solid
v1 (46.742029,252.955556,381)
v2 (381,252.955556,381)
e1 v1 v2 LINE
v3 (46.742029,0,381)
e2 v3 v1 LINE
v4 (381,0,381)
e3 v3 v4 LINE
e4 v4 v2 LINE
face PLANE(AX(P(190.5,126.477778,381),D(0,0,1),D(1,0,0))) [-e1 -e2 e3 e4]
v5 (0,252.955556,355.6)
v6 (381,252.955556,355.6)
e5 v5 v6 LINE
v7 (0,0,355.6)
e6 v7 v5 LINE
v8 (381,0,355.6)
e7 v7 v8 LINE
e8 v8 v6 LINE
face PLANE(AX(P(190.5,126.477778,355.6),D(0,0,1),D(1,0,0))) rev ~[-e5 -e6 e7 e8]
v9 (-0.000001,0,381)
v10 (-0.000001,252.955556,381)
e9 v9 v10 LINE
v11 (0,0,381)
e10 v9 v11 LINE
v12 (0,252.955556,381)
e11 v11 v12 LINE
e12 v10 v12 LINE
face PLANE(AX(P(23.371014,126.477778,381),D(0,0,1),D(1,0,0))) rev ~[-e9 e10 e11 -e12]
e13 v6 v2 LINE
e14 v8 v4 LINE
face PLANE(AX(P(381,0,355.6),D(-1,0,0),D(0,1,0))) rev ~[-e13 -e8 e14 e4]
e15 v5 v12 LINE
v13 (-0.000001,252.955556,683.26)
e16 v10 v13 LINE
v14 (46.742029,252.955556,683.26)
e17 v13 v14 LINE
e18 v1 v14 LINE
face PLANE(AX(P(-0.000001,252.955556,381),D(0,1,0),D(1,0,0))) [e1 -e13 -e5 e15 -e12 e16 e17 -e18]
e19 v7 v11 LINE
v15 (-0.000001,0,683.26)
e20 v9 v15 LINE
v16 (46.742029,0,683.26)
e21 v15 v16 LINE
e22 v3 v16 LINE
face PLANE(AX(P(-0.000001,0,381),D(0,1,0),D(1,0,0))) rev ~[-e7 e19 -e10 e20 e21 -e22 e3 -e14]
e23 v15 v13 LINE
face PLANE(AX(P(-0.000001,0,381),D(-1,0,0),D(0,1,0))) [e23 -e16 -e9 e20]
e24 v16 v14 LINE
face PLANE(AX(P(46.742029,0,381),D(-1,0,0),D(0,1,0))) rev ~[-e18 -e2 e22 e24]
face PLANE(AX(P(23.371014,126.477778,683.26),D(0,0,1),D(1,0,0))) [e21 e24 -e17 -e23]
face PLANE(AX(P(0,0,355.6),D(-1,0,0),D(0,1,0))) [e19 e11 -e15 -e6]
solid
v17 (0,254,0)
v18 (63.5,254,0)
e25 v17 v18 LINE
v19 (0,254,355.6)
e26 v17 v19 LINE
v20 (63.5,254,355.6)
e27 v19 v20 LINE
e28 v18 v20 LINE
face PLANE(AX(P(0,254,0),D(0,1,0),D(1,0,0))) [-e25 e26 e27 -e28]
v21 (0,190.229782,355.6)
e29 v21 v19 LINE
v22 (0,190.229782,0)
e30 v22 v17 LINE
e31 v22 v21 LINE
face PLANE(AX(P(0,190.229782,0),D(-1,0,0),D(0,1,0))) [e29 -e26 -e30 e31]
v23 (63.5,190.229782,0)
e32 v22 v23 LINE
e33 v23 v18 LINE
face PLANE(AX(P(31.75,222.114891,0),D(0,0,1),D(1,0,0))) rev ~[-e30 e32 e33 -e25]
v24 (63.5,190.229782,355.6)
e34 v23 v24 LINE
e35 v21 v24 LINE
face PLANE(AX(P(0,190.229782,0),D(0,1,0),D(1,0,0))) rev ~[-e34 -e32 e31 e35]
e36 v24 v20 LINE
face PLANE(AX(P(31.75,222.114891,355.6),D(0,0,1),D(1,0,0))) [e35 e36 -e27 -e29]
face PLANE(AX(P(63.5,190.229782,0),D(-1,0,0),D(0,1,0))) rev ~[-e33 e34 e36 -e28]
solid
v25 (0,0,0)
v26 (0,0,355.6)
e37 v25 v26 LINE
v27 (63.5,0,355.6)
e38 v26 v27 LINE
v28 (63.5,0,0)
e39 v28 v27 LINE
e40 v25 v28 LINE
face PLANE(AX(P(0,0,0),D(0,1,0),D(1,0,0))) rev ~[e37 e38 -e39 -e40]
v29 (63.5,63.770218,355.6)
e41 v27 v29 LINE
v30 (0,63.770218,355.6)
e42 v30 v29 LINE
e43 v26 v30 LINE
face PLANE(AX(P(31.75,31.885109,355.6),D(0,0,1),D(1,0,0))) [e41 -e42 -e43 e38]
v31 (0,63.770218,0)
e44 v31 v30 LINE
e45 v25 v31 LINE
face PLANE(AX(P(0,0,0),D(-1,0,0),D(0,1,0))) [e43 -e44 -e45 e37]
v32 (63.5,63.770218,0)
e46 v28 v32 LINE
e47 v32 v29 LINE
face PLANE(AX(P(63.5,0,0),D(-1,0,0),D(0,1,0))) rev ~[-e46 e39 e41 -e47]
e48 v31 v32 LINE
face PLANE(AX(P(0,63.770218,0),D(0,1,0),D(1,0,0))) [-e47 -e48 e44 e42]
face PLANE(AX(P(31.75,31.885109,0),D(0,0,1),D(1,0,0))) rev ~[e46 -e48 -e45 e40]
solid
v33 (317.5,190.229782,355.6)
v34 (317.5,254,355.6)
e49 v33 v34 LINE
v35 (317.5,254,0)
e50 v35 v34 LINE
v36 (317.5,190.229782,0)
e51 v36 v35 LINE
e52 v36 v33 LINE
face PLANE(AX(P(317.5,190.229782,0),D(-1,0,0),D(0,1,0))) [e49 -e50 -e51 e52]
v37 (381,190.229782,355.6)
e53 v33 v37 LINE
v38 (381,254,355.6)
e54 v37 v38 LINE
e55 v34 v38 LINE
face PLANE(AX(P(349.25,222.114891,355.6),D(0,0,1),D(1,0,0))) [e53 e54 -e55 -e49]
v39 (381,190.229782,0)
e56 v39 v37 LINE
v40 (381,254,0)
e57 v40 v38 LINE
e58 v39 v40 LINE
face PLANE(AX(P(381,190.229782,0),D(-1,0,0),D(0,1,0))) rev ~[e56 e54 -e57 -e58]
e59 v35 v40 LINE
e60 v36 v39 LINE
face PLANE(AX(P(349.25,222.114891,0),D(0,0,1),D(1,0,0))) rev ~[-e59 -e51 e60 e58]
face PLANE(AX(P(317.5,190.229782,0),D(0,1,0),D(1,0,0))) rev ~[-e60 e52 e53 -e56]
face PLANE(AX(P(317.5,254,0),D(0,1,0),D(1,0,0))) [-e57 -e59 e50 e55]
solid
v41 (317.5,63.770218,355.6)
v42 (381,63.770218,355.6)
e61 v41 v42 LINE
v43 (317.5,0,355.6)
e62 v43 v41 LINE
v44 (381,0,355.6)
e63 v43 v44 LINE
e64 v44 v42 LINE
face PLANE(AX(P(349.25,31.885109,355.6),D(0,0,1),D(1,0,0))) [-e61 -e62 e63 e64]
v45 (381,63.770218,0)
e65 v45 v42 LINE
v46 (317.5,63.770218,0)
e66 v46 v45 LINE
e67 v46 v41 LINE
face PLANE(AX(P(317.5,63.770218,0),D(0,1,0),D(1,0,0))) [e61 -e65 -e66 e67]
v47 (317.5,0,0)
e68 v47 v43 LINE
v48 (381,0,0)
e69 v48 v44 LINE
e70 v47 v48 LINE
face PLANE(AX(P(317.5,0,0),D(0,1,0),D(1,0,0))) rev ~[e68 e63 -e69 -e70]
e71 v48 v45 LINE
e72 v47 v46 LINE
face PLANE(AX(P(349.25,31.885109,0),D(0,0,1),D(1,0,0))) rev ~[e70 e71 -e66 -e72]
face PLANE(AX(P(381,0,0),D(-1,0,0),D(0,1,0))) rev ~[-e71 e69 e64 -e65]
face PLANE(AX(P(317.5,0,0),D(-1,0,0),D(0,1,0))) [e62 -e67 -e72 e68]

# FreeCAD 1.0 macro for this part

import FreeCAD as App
import Part
import Sketcher
from FreeCAD import Vector
Q = App.Units.Quantity

doc = App.newDocument("Part")
body = doc.addObject("PartDesign::Body", "Body")
body.AllowCompound = True

# Sketch on XY plane
sketch1 = body.newObject("Sketcher::SketchObject", "Sketch")
sketch1.AttachmentSupport = (doc.getObject("XY_Plane"), [""])
sketch1.MapMode = "FlatFace"
sketch1.addGeometry([
    Part.LineSegment(Vector(318, 64, 0), Vector(318, 0, 0)),  # 0
    Part.LineSegment(Vector(318, 0, 0), Vector(381, 0, 0)),  # 1
    Part.LineSegment(Vector(381, 0, 0), Vector(381, 64, 0)),  # 2
    Part.LineSegment(Vector(381, 64, 0), Vector(318, 64, 0)),  # 3
    Part.LineSegment(Vector(0, 64, 0), Vector(0, 0, 0)),  # 4
    Part.LineSegment(Vector(0, 0, 0), Vector(64, 0, 0)),  # 5
    Part.LineSegment(Vector(64, 0, 0), Vector(64, 64, 0)),  # 6
    Part.LineSegment(Vector(64, 64, 0), Vector(0, 64, 0)),  # 7
    Part.LineSegment(Vector(0, 254, 0), Vector(0, 190, 0)),  # 8
    Part.LineSegment(Vector(0, 190, 0), Vector(64, 190, 0)),  # 9
    Part.LineSegment(Vector(64, 190, 0), Vector(64, 254, 0)),  # 10
    Part.LineSegment(Vector(64, 254, 0), Vector(0, 254, 0)),  # 11
    Part.LineSegment(Vector(318, 254, 0), Vector(318, 190, 0)),  # 12
    Part.LineSegment(Vector(318, 190, 0), Vector(381, 190, 0)),  # 13
    Part.LineSegment(Vector(381, 190, 0), Vector(381, 254, 0)),  # 14
    Part.LineSegment(Vector(381, 254, 0), Vector(318, 254, 0)),  # 15
], False)
sketch1.addConstraint([
    Sketcher.Constraint("Coincident", 0, 2, 1, 1),
    Sketcher.Constraint("Coincident", 1, 2, 2, 1),
    Sketcher.Constraint("Coincident", 2, 2, 3, 1),
    Sketcher.Constraint("Coincident", 3, 2, 0, 1),
    Sketcher.Constraint("Coincident", 4, 2, 5, 1),
    Sketcher.Constraint("Coincident", 5, 2, 6, 1),
    Sketcher.Constraint("Coincident", 6, 2, 7, 1),
    Sketcher.Constraint("Coincident", 7, 2, 4, 1),
    Sketcher.Constraint("Coincident", 8, 2, 9, 1),
    Sketcher.Constraint("Coincident", 9, 2, 10, 1),
    Sketcher.Constraint("Coincident", 10, 2, 11, 1),
    Sketcher.Constraint("Coincident", 11, 2, 8, 1),
    Sketcher.Constraint("Coincident", 12, 2, 13, 1),
    Sketcher.Constraint("Coincident", 13, 2, 14, 1),
    Sketcher.Constraint("Coincident", 14, 2, 15, 1),
    Sketcher.Constraint("Coincident", 15, 2, 12, 1),
    Sketcher.Constraint("Vertical", 0),
    Sketcher.Constraint("Horizontal", 1),
    Sketcher.Constraint("Vertical", 2),
    Sketcher.Constraint("Horizontal", 3),
    Sketcher.Constraint("Vertical", 4),
    Sketcher.Constraint("Horizontal", 5),
    Sketcher.Constraint("Vertical", 6),
    Sketcher.Constraint("Horizontal", 7),
    Sketcher.Constraint("Vertical", 8),
    Sketcher.Constraint("Horizontal", 9),
    Sketcher.Constraint("Vertical", 10),
    Sketcher.Constraint("Horizontal", 11),
    Sketcher.Constraint("Vertical", 12),
    Sketcher.Constraint("Horizontal", 13),
    Sketcher.Constraint("Vertical", 14),
    Sketcher.Constraint("Horizontal", 15),
    Sketcher.Constraint("Coincident", 4, 2, -1, 1),
    Sketcher.Constraint("PointOnObject", 0, 2, -1),
    Sketcher.Constraint("PointOnObject", 8, 2, -2),
    Sketcher.Constraint("Horizontal", 3, 2, 6, 2),
    Sketcher.Constraint("Horizontal", 9, 2, 12, 2),
    Sketcher.Constraint("Horizontal", 11, 2, 14, 2),
    Sketcher.Constraint("Vertical", 6, 2, 9, 2),
    Sketcher.Constraint("Vertical", 3, 2, 12, 2),
    Sketcher.Constraint("Vertical", 2, 2, 13, 2),
    Sketcher.Constraint("Equal", 3, 5),
    Sketcher.Constraint("Equal", 6, 8),
    Sketcher.Constraint("DistanceX", 1, 1, 1, 2, Q("2.5 in")),
    Sketcher.Constraint("DistanceX", -1, 1, 1, 2, Q("15 in")),
    Sketcher.Constraint("DistanceY", -1, 1, 10, 2, Q("10 in")),
    Sketcher.Constraint("DistanceY", 0, 2, 0, 1, Q("63.770218 mm")),
])
pad1 = body.newObject("PartDesign::Pad", "Pad")
pad1.Profile = sketch1
pad1.Length = Q("14 in")
body2 = doc.addObject("PartDesign::Body", "Body001")

# Sketch on XY plane
sketch2 = body2.newObject("Sketcher::SketchObject", "Sketch001")
sketch2.AttachmentSupport = (doc.getObject("XY_Plane001"), [""])
sketch2.MapMode = "FlatFace"
sketch2.AttachmentOffset = App.Placement(Vector(0, 0, 14 * 25.4), App.Rotation())
sketch2.addGeometry([
    Part.LineSegment(Vector(0, 253, 0), Vector(0, 0, 0)),
    Part.LineSegment(Vector(0, 0, 0), Vector(381, 0, 0)),
    Part.LineSegment(Vector(381, 0, 0), Vector(381, 253, 0)),
    Part.LineSegment(Vector(381, 253, 0), Vector(0, 253, 0)),
], False)
sketch2.addConstraint([
    Sketcher.Constraint("Coincident", 0, 2, 1, 1),
    Sketcher.Constraint("Coincident", 1, 2, 2, 1),
    Sketcher.Constraint("Coincident", 2, 2, 3, 1),
    Sketcher.Constraint("Coincident", 3, 2, 0, 1),
    Sketcher.Constraint("Vertical", 0),
    Sketcher.Constraint("Horizontal", 1),
    Sketcher.Constraint("Vertical", 2),
    Sketcher.Constraint("Horizontal", 3),
    Sketcher.Constraint("Coincident", 0, 2, -1, 1),
    Sketcher.Constraint("DistanceX", 1, 1, 1, 2, Q("15 in")),
    Sketcher.Constraint("DistanceY", 0, 2, 0, 1, Q("252.955556 mm")),
])
pad2 = body2.newObject("PartDesign::Pad", "Pad001")
pad2.Profile = sketch2
pad2.Length = Q("1 in")

# Sketch on XY plane
sketch3 = body2.newObject("Sketcher::SketchObject", "Sketch002")
sketch3.AttachmentSupport = (doc.getObject("XY_Plane001"), [""])
sketch3.MapMode = "FlatFace"
sketch3.AttachmentOffset = App.Placement(Vector(0, 0, 15 * 25.4), App.Rotation())
sketch3.addGeometry([
    Part.LineSegment(Vector(0, 253, 0), Vector(0, 0, 0)),
    Part.LineSegment(Vector(0, 0, 0), Vector(47, 0, 0)),
    Part.LineSegment(Vector(47, 0, 0), Vector(47, 253, 0)),
    Part.LineSegment(Vector(47, 253, 0), Vector(0, 253, 0)),
], False)
sketch3.addConstraint([
    Sketcher.Constraint("Coincident", 0, 2, 1, 1),
    Sketcher.Constraint("Coincident", 1, 2, 2, 1),
    Sketcher.Constraint("Coincident", 2, 2, 3, 1),
    Sketcher.Constraint("Coincident", 3, 2, 0, 1),
    Sketcher.Constraint("Vertical", 0),
    Sketcher.Constraint("Horizontal", 1),
    Sketcher.Constraint("Vertical", 2),
    Sketcher.Constraint("Horizontal", 3),
    Sketcher.Constraint("Coincident", 0, 2, -1, 1),
    Sketcher.Constraint("DistanceX", 1, 1, 1, 2, Q("46.742029 mm")),
    Sketcher.Constraint("DistanceY", 0, 2, 0, 1, Q("252.955556 mm")),
])
pad3 = body2.newObject("PartDesign::Pad", "Pad002")
pad3.Profile = sketch3
pad3.Length = Q("11.9 in")

doc.recompute()
